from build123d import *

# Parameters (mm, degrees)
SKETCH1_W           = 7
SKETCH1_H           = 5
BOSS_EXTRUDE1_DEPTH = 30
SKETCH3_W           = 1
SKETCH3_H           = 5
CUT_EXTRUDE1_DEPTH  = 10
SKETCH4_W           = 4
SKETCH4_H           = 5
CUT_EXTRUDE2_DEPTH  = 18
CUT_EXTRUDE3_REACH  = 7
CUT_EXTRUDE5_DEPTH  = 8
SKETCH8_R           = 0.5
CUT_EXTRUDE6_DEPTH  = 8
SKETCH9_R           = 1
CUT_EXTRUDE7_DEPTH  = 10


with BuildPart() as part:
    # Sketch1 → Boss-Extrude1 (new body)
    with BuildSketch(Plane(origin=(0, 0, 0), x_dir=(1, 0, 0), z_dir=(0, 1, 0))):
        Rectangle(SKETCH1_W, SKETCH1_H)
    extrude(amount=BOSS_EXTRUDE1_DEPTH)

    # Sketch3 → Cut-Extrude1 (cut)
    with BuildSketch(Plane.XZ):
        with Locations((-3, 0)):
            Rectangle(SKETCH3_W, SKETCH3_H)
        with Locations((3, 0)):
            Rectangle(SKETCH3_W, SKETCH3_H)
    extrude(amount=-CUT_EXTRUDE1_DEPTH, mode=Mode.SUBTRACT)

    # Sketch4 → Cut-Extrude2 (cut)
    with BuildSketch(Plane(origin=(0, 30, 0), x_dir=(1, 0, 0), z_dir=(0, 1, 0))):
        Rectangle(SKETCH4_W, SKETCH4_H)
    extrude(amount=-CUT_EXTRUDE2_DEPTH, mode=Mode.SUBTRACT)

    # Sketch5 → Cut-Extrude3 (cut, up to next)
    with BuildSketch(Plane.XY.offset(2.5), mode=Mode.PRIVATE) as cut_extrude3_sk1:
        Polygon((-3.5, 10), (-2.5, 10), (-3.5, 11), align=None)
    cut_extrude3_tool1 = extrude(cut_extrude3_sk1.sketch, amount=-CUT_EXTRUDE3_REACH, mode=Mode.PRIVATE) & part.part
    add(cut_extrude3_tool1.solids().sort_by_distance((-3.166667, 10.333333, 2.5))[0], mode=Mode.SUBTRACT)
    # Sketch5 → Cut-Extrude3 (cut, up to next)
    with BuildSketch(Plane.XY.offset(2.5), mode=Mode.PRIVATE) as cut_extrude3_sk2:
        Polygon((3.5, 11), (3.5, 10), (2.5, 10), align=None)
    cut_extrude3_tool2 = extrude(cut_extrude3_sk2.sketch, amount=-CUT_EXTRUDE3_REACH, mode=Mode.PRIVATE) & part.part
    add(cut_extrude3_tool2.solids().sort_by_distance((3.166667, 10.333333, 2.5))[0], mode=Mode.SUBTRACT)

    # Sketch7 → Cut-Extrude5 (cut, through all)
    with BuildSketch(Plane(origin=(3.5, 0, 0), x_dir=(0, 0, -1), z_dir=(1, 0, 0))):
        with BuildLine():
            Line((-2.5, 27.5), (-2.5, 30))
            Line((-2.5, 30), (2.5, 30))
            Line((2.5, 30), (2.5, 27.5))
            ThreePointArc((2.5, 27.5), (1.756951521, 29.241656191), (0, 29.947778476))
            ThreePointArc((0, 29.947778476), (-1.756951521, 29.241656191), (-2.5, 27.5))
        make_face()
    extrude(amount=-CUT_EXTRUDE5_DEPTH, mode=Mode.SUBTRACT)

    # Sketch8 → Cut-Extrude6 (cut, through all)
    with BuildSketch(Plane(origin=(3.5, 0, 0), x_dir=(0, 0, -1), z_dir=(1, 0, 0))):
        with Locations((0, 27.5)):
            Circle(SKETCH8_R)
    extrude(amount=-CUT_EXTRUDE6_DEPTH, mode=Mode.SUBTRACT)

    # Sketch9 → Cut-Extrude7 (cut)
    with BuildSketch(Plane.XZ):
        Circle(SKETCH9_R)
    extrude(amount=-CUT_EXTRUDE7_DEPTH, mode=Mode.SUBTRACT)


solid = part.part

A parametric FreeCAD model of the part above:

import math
import FreeCAD as App
import Part
import Sketcher

V = App.Vector

doc = App.newDocument("Part")
body = doc.addObject("PartDesign::Body", "Body")

# Sketch on XZ plane
sketch1 = doc.addObject("Sketcher::SketchObject", "Sketch")
body.addObject(sketch1)
sketch1.AttachmentSupport = (doc.XZ_Plane, [""])
sketch1.MapMode = "FlatFace"
sketch1.addGeometry([
    Part.LineSegment(V(-4, -2, 0), V(-4, 2, 0)),
    Part.LineSegment(V(-4, 2, 0), V(4, 2, 0)),
    Part.LineSegment(V(4, 2, 0), V(4, -2, 0)),
    Part.LineSegment(V(4, -2, 0), V(-4, -2, 0)),
], False)
sketch1.addConstraint([
    Sketcher.Constraint("Coincident", 0, 2, 1, 1),
    Sketcher.Constraint("Coincident", 1, 2, 2, 1),
    Sketcher.Constraint("Coincident", 2, 2, 3, 1),
    Sketcher.Constraint("Coincident", 3, 2, 0, 1),
    Sketcher.Constraint("Vertical", 0),
    Sketcher.Constraint("Horizontal", 1),
    Sketcher.Constraint("Vertical", 2),
    Sketcher.Constraint("Horizontal", 3),
    Sketcher.Constraint("Symmetric", 0, 2, 2, 2, -1, 1),
    Sketcher.Constraint("DistanceX", 1, 1, 1, 2, 7.0),
    Sketcher.Constraint("DistanceY", 0, 1, 0, 2, 5.0),
])
pad1 = doc.addObject("PartDesign::Pad", "Pad")
body.addObject(pad1)
pad1.Profile = sketch1
pad1.Length = 30
pad1.Reversed = True

# Sketch on XZ plane
sketch2 = doc.addObject("Sketcher::SketchObject", "Sketch001")
body.addObject(sketch2)
sketch2.AttachmentSupport = (doc.XZ_Plane, [""])
sketch2.MapMode = "FlatFace"
sketch2.addGeometry([
    Part.LineSegment(V(-3.5, 2.5, 0), V(-3.5, -2.5, 0)),  # 0
    Part.LineSegment(V(-3.5, -2.5, 0), V(-2.5, -2.5, 0)),  # 1
    Part.LineSegment(V(-2.5, -2.5, 0), V(-2.5, 2.5, 0)),  # 2
    Part.LineSegment(V(-2.5, 2.5, 0), V(-3.5, 2.5, 0)),  # 3
    Part.LineSegment(V(2.5, 2.5, 0), V(2.5, -2.5, 0)),  # 4
    Part.LineSegment(V(2.5, -2.5, 0), V(3.5, -2.5, 0)),  # 5
    Part.LineSegment(V(3.5, -2.5, 0), V(3.5, 2.5, 0)),  # 6
    Part.LineSegment(V(3.5, 2.5, 0), V(2.5, 2.5, 0)),  # 7
], False)
sketch2.addConstraint([
    Sketcher.Constraint("Coincident", 0, 2, 1, 1),
    Sketcher.Constraint("Coincident", 1, 2, 2, 1),
    Sketcher.Constraint("Coincident", 2, 2, 3, 1),
    Sketcher.Constraint("Coincident", 3, 2, 0, 1),
    Sketcher.Constraint("Coincident", 4, 2, 5, 1),
    Sketcher.Constraint("Coincident", 5, 2, 6, 1),
    Sketcher.Constraint("Coincident", 6, 2, 7, 1),
    Sketcher.Constraint("Coincident", 7, 2, 4, 1),
    Sketcher.Constraint("Vertical", 0),
    Sketcher.Constraint("Horizontal", 1),
    Sketcher.Constraint("Vertical", 2),
    Sketcher.Constraint("Horizontal", 3),
    Sketcher.Constraint("Vertical", 4),
    Sketcher.Constraint("Horizontal", 5),
    Sketcher.Constraint("Vertical", 6),
    Sketcher.Constraint("Horizontal", 7),
    Sketcher.Constraint("Symmetric", 2, 2, 4, 2, -1, 1),
    Sketcher.Constraint("Symmetric", 0, 2, 6, 2, -1, 1),
    Sketcher.Constraint("Horizontal", 1, 2, 4, 2),
    Sketcher.Constraint("DistanceX", 1, 1, 1, 2, 1.0),
    Sketcher.Constraint("DistanceY", 0, 2, 0, 1, 5.0),
    Sketcher.Constraint("DistanceX", 1, 2, 4, 2, 5.0),
])
pocket1 = doc.addObject("PartDesign::Pocket", "Pocket")
body.addObject(pocket1)
pocket1.Profile = sketch2
pocket1.Length = 10

# Sketch on XZ plane
sketch3 = doc.addObject("Sketcher::SketchObject", "Sketch002")
body.addObject(sketch3)
sketch3.AttachmentSupport = (doc.XZ_Plane, [""])
sketch3.MapMode = "FlatFace"
sketch3.AttachmentOffset = App.Placement(V(0, 0, -30), App.Rotation())
sketch3.addGeometry([
    Part.LineSegment(V(-2, -2.5, 0), V(-2, 2.5, 0)),
    Part.LineSegment(V(-2, 2.5, 0), V(2, 2.5, 0)),
    Part.LineSegment(V(2, 2.5, 0), V(2, -2.5, 0)),
    Part.LineSegment(V(2, -2.5, 0), V(-2, -2.5, 0)),
], False)
sketch3.addConstraint([
    Sketcher.Constraint("Coincident", 0, 2, 1, 1),
    Sketcher.Constraint("Coincident", 1, 2, 2, 1),
    Sketcher.Constraint("Coincident", 2, 2, 3, 1),
    Sketcher.Constraint("Coincident", 3, 2, 0, 1),
    Sketcher.Constraint("Vertical", 0),
    Sketcher.Constraint("Horizontal", 1),
    Sketcher.Constraint("Vertical", 2),
    Sketcher.Constraint("Horizontal", 3),
    Sketcher.Constraint("Symmetric", 0, 2, 2, 2, -1, 1),
    Sketcher.Constraint("DistanceX", 1, 1, 1, 2, 4.0),
    Sketcher.Constraint("DistanceY", 0, 1, 0, 2, 5.0),
])
pocket2 = doc.addObject("PartDesign::Pocket", "Pocket001")
body.addObject(pocket2)
pocket2.Profile = sketch3
pocket2.Length = 18
pocket2.Reversed = True

# Sketch on XY plane
sketch4 = doc.addObject("Sketcher::SketchObject", "Sketch003")
body.addObject(sketch4)
sketch4.AttachmentSupport = (doc.XY_Plane, [""])
sketch4.MapMode = "FlatFace"
sketch4.AttachmentOffset = App.Placement(V(0, 0, 2.5), App.Rotation())
sketch4.addGeometry([
    Part.LineSegment(V(-3.5, 10, 0), V(-2.5, 10, 0)),
    Part.LineSegment(V(-2.5, 10, 0), V(-3.5, 11, 0)),
    Part.LineSegment(V(-3.5, 11, 0), V(-3.5, 10, 0)),
], False)
sketch4.addConstraint([
    Sketcher.Constraint("Coincident", 0, 2, 1, 1),
    Sketcher.Constraint("Coincident", 1, 2, 2, 1),
    Sketcher.Constraint("Coincident", 2, 2, 0, 1),
    Sketcher.Constraint("Horizontal", 0),
    Sketcher.Constraint("Vertical", 2),
    Sketcher.Constraint("Equal", 0, 2),
    Sketcher.Constraint("DistanceX", 0, 1, 0, 2, 1.0),
    Sketcher.Constraint("DistanceY", -1, 1, 0, 2, 10.0),
    Sketcher.Constraint("DistanceX", 0, 2, -1, 1, 2.5),
])
pocket3 = doc.addObject("PartDesign::Pocket", "Pocket002")
body.addObject(pocket3)
pocket3.Profile = sketch4
pocket3.Type = "UpToFirst"

# Sketch on XY plane
sketch5 = doc.addObject("Sketcher::SketchObject", "Sketch004")
body.addObject(sketch5)
sketch5.AttachmentSupport = (doc.XY_Plane, [""])
sketch5.MapMode = "FlatFace"
sketch5.AttachmentOffset = App.Placement(V(0, 0, 2.5), App.Rotation())
sketch5.addGeometry([
    Part.LineSegment(V(3.5, 10, 0), V(3.5, 11, 0)),
    Part.LineSegment(V(3.5, 11, 0), V(2.5, 10, 0)),
    Part.LineSegment(V(2.5, 10, 0), V(3.5, 10, 0)),
], False)
sketch5.addConstraint([
    Sketcher.Constraint("Coincident", 0, 2, 1, 1),
    Sketcher.Constraint("Coincident", 1, 2, 2, 1),
    Sketcher.Constraint("Coincident", 2, 2, 0, 1),
    Sketcher.Constraint("Vertical", 0),
    Sketcher.Constraint("Horizontal", 2),
    Sketcher.Constraint("Equal", 2, 0),
    Sketcher.Constraint("DistanceX", 2, 1, 2, 2, 1.0),
    Sketcher.Constraint("DistanceY", -1, 1, 0, 2, 11.0),
    Sketcher.Constraint("DistanceX", -1, 1, 0, 2, 3.5),
])
pocket4 = doc.addObject("PartDesign::Pocket", "Pocket003")
body.addObject(pocket4)
pocket4.Profile = sketch5
pocket4.Type = "UpToFirst"

# Sketch on YZ plane
sketch6 = doc.addObject("Sketcher::SketchObject", "Sketch005")
body.addObject(sketch6)
sketch6.AttachmentSupport = (doc.YZ_Plane, [""])
sketch6.MapMode = "FlatFace"
sketch6.AttachmentOffset = App.Placement(V(0, 0, 3.5), App.Rotation())
sketch6.addGeometry([
    Part.LineSegment(V(30, 2.5, 0), V(27.5, 2.5, 0)),  # 0
    Part.ArcOfCircle(Part.Circle(V(27.473889, 0.026111, 0), V(0, 0, 1), 2.474027), math.radians(-0.604708), math.radians(89.395292)),  # 1
    Part.ArcOfCircle(Part.Circle(V(27.473889, -0.026111, 0), V(0, 0, 1), 2.474027), math.radians(-89.395292), math.radians(0.604708)),  # 2
    Part.LineSegment(V(27.5, -2.5, 0), V(30, -2.5, 0)),  # 3
    Part.LineSegment(V(30, -2.5, 0), V(30, 2.5, 0)),  # 4
], False)
sketch6.addConstraint([
    Sketcher.Constraint("Coincident", 0, 2, 1, 2),
    Sketcher.Constraint("Coincident", 1, 1, 2, 2),
    Sketcher.Constraint("Coincident", 2, 1, 3, 1),
    Sketcher.Constraint("Coincident", 3, 2, 4, 1),
    Sketcher.Constraint("Coincident", 4, 2, 0, 1),
    Sketcher.Constraint("Horizontal", 0),
    Sketcher.Constraint("Horizontal", 3),
    Sketcher.Constraint("Vertical", 4),
    Sketcher.Constraint("Equal", 1, 2),
    Sketcher.Constraint("Symmetric", 1, 3, 2, 3, -1),
    Sketcher.Constraint("Vertical", 0, 2, 2, 1),
    Sketcher.Constraint("DistanceY", 4, 1, 4, 2, 5.0),
    Sketcher.Constraint("DistanceX", 0, 2, 0, 1, 2.5),
    Sketcher.Constraint("DistanceX", -1, 1, 3, 2, 30.0),
    Sketcher.Constraint("Radius", 1, 2.474027),
    Sketcher.Constraint("DistanceX", -1, 1, 1, 3, 27.473889),
])
pocket5 = doc.addObject("PartDesign::Pocket", "Pocket004")
body.addObject(pocket5)
pocket5.Profile = sketch6
pocket5.Type = "ThroughAll"

# Sketch on YZ plane
sketch7 = doc.addObject("Sketcher::SketchObject", "Sketch006")
body.addObject(sketch7)
sketch7.AttachmentSupport = (doc.YZ_Plane, [""])
sketch7.MapMode = "FlatFace"
sketch7.AttachmentOffset = App.Placement(V(0, 0, 3.5), App.Rotation())
sketch7.addGeometry(Part.Circle(V(27.5, 0, 0), V(0, 0, 1), 0.5), False)
sketch7.addConstraint([
    Sketcher.Constraint("PointOnObject", 0, 3, -1),
    Sketcher.Constraint("Diameter", 0, 1.0),
    Sketcher.Constraint("DistanceX", -1, 1, 0, 3, 27.5),
])
pocket6 = doc.addObject("PartDesign::Pocket", "Pocket005")
body.addObject(pocket6)
pocket6.Profile = sketch7
pocket6.Type = "ThroughAll"

# Sketch on XZ plane
sketch8 = doc.addObject("Sketcher::SketchObject", "Sketch007")
body.addObject(sketch8)
sketch8.AttachmentSupport = (doc.XZ_Plane, [""])
sketch8.MapMode = "FlatFace"
sketch8.addGeometry(Part.Circle(V(0, 0, 0), V(0, 0, 1), 1), False)
sketch8.addConstraint([
    Sketcher.Constraint("Coincident", 0, 3, -1, 1),
    Sketcher.Constraint("Diameter", 0, 2.0),
])
pocket7 = doc.addObject("PartDesign::Pocket", "Pocket006")
body.addObject(pocket7)
pocket7.Profile = sketch8
pocket7.Length = 10

doc.recompute()
